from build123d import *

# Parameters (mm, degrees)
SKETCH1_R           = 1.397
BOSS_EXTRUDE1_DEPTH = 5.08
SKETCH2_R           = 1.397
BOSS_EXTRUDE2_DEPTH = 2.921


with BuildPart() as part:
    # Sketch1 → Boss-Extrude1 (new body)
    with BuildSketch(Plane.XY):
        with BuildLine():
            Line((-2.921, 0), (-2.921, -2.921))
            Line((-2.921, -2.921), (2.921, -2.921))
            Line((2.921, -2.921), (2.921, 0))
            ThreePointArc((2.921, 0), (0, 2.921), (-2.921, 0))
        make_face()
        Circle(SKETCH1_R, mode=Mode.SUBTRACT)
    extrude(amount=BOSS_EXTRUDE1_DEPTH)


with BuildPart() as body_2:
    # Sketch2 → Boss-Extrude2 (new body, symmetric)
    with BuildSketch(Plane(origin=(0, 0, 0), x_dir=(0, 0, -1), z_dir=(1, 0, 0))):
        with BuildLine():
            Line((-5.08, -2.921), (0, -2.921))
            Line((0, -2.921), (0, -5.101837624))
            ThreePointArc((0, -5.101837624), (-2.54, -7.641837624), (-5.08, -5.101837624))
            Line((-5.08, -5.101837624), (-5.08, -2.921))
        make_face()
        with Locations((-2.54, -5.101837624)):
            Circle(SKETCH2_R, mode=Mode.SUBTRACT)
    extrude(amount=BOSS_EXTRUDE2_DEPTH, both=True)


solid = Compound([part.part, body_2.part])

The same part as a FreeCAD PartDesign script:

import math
import FreeCAD as App
import Part
import Sketcher

V = App.Vector
Q = App.Units.Quantity

doc = App.newDocument("Part")
body = doc.addObject("PartDesign::Body", "Body")

sketch1 = body.newObject("Sketcher::SketchObject", "Sketch")
sketch1.AttachmentSupport = (doc.getObject("XY_Plane"), [""])
sketch1.MapMode = "FlatFace"
sketch1.addGeometry([
    Part.LineSegment(V(-2.9, 0, 0), V(-2.9, -2.9, 0)),
    Part.LineSegment(V(-2.9, -2.9, 0), V(2.9, -2.9, 0)),
    Part.LineSegment(V(2.9, -2.9, 0), V(2.9, 0, 0)),
    Part.ArcOfCircle(Part.Circle(V(0, 0, 0), V(0, 0, 1), 2.9), math.radians(0), math.radians(180)),
    Part.Circle(V(0, 0, 0), V(0, 0, 1), 1.4),
], False)
sketch1.addConstraint([
    Sketcher.Constraint("Coincident", 0, 2, 1, 1),
    Sketcher.Constraint("Coincident", 1, 2, 2, 1),
    Sketcher.Constraint("Tangent", 2, 2, 3, 1),
    Sketcher.Constraint("Tangent", 3, 2, 0, 1),
    Sketcher.Constraint("Vertical", 0),
    Sketcher.Constraint("Horizontal", 1),
    Sketcher.Constraint("Vertical", 2),
    Sketcher.Constraint("Coincident", 3, 3, -1, 1),
    Sketcher.Constraint("Coincident", 4, 3, -1, 1),
    Sketcher.Constraint("Diameter", 4, Q("0.11 in")),
    Sketcher.Constraint("Radius", 3, Q("0.115 in")),
    Sketcher.Constraint("DistanceY", 0, 2, 0, 1, Q("0.115 in")),
])
pad1 = body.newObject("PartDesign::Pad", "Pad")
pad1.Profile = sketch1
pad1.Length = Q("0.2 in")
body2 = doc.addObject("PartDesign::Body", "Body001")

sketch2 = body2.newObject("Sketcher::SketchObject", "Sketch001")
sketch2.AttachmentSupport = (doc.getObject("YZ_Plane001"), [""])
sketch2.MapMode = "FlatFace"
sketch2.addGeometry([
    Part.LineSegment(V(-2.9, 0, 0), V(-2.9, 5.1, 0)),
    Part.LineSegment(V(-2.9, 5.1, 0), V(-5.1, 5.1, 0)),
    Part.ArcOfCircle(Part.Circle(V(-5.1, 2.5, 0), V(0, 0, 1), 2.5), math.radians(90), math.radians(270)),
    Part.LineSegment(V(-5.1, 0, 0), V(-2.9, 0, 0)),
    Part.Circle(V(-5.1, 2.5, 0), V(0, 0, 1), 1.4),
], False)
sketch2.addConstraint([
    Sketcher.Constraint("Coincident", 0, 2, 1, 1),
    Sketcher.Constraint("Tangent", 1, 2, 2, 1),
    Sketcher.Constraint("Tangent", 2, 2, 3, 1),
    Sketcher.Constraint("Coincident", 3, 2, 0, 1),
    Sketcher.Constraint("Vertical", 0),
    Sketcher.Constraint("Horizontal", 1),
    Sketcher.Constraint("Horizontal", 3),
    Sketcher.Constraint("Coincident", 4, 3, 2, 3),
    Sketcher.Constraint("PointOnObject", 2, 2, -1),
    Sketcher.Constraint("Radius", 2, Q("0.1 in")),
    Sketcher.Constraint("Diameter", 4, Q("0.11 in")),
    Sketcher.Constraint("DistanceX", 0, 2, -1, 1, Q("0.115 in")),
    Sketcher.Constraint("DistanceX", 1, 2, 1, 1, Q("2.180838 mm")),
])
pad2 = body2.newObject("PartDesign::Pad", "Pad001")
pad2.Profile = sketch2
pad2.Length = Q("0.23 in")
pad2.Midplane = True

doc.recompute()
